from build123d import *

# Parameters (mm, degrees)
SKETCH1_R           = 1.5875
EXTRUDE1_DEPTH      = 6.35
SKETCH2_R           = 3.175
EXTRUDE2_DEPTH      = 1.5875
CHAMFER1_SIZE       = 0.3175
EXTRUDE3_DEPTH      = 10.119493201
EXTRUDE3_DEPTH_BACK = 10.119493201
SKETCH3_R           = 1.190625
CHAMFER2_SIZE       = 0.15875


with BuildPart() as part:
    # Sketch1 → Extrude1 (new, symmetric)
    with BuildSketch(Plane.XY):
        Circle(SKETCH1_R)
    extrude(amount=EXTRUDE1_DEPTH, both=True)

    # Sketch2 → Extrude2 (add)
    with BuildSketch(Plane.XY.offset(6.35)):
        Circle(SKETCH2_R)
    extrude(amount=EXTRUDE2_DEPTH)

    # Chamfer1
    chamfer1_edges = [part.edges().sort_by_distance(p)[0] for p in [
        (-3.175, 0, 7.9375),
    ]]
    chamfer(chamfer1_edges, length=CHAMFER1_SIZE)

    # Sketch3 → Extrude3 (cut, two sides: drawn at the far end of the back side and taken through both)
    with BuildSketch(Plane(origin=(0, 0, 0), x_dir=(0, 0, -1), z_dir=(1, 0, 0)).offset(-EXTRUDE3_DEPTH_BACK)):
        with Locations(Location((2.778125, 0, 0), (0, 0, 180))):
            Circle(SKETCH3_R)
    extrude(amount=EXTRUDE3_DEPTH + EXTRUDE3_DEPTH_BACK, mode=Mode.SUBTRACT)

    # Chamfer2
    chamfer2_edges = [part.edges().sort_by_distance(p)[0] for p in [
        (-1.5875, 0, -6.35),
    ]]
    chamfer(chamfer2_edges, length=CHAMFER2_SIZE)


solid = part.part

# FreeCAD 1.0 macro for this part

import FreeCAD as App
import Part
import Sketcher
from FreeCAD import Vector
Q = App.Units.Quantity


def edges_at(feature, points):
    """Names of the edges that pass closest to the given points."""
    edges = feature.Shape.Edges
    near = lambda p: min(range(len(edges)), key=lambda i: edges[i].distToShape(Part.Vertex(*p))[0])
    return sorted({f"Edge{near(p) + 1}" for p in points})

doc = App.newDocument("Part")
body = doc.addObject("PartDesign::Body", "Body")

sketch1 = body.newObject("Sketcher::SketchObject", "Sketch")
sketch1.AttachmentSupport = (doc.getObject("XY_Plane"), [""])
sketch1.MapMode = "FlatFace"
sketch1.addGeometry(Part.Circle(Vector(0, 0, 0), Vector(0, 0, 1), 1.5875), False)
sketch1.addConstraint(Sketcher.Constraint("Coincident", 0, 3, -1, 1))
sketch1.addConstraint(Sketcher.Constraint("Diameter", 0, Q("0.125 in")))
pad1 = body.newObject("PartDesign::Pad", "Pad")
pad1.Profile = sketch1
pad1.Length = Q("0.5 in")
pad1.Midplane = True

sketch2 = body.newObject("Sketcher::SketchObject", "Sketch001")
sketch2.AttachmentSupport = (doc.getObject("XY_Plane"), [""])
sketch2.MapMode = "FlatFace"
sketch2.AttachmentOffset = App.Placement(Vector(0, 0, 0.25 * 25.4), App.Rotation())
sketch2.addGeometry(Part.Circle(Vector(0, 0, 0), Vector(0, 0, 1), 3.175), False)
sketch2.addConstraint(Sketcher.Constraint("Coincident", 0, 3, -1, 1))
sketch2.addConstraint(Sketcher.Constraint("Diameter", 0, Q("0.25 in")))
pad2 = body.newObject("PartDesign::Pad", "Pad001")
pad2.Profile = sketch2
pad2.Length = Q("0.0625 in")
doc.recompute()

chamfer = body.newObject("PartDesign::Chamfer", "Chamfer")
chamfer.Base = (pad2, edges_at(pad2, [(-3.175, 0, 7.938)]))
chamfer.Size = Q("0.0125 in")

sketch3 = body.newObject("Sketcher::SketchObject", "Sketch002")
sketch3.AttachmentSupport = (doc.getObject("YZ_Plane"), [""])
sketch3.MapMode = "FlatFace"
sketch3.addGeometry(Part.Circle(Vector(0, -2.778125, 0), Vector(0, 0, 1), 1.190625), False)
sketch3.addConstraint(Sketcher.Constraint("PointOnObject", 0, 3, -2))
sketch3.addConstraint(Sketcher.Constraint("Diameter", 0, Q("0.09375 in")))
sketch3.addConstraint(Sketcher.Constraint("DistanceY", 0, 3, -1, 1, Q("0.109375 in")))
pocket1 = body.newObject("PartDesign::Pocket", "Pocket")
pocket1.Profile = sketch3
pocket1.Type = "ThroughAll"
pocket1.Midplane = True
doc.recompute()

chamfer2 = body.newObject("PartDesign::Chamfer", "Chamfer001")
chamfer2.Base = (pocket1, edges_at(pocket1, [(-1.587, 0, -6.35)]))
chamfer2.Size = 0.15875

doc.recompute()
